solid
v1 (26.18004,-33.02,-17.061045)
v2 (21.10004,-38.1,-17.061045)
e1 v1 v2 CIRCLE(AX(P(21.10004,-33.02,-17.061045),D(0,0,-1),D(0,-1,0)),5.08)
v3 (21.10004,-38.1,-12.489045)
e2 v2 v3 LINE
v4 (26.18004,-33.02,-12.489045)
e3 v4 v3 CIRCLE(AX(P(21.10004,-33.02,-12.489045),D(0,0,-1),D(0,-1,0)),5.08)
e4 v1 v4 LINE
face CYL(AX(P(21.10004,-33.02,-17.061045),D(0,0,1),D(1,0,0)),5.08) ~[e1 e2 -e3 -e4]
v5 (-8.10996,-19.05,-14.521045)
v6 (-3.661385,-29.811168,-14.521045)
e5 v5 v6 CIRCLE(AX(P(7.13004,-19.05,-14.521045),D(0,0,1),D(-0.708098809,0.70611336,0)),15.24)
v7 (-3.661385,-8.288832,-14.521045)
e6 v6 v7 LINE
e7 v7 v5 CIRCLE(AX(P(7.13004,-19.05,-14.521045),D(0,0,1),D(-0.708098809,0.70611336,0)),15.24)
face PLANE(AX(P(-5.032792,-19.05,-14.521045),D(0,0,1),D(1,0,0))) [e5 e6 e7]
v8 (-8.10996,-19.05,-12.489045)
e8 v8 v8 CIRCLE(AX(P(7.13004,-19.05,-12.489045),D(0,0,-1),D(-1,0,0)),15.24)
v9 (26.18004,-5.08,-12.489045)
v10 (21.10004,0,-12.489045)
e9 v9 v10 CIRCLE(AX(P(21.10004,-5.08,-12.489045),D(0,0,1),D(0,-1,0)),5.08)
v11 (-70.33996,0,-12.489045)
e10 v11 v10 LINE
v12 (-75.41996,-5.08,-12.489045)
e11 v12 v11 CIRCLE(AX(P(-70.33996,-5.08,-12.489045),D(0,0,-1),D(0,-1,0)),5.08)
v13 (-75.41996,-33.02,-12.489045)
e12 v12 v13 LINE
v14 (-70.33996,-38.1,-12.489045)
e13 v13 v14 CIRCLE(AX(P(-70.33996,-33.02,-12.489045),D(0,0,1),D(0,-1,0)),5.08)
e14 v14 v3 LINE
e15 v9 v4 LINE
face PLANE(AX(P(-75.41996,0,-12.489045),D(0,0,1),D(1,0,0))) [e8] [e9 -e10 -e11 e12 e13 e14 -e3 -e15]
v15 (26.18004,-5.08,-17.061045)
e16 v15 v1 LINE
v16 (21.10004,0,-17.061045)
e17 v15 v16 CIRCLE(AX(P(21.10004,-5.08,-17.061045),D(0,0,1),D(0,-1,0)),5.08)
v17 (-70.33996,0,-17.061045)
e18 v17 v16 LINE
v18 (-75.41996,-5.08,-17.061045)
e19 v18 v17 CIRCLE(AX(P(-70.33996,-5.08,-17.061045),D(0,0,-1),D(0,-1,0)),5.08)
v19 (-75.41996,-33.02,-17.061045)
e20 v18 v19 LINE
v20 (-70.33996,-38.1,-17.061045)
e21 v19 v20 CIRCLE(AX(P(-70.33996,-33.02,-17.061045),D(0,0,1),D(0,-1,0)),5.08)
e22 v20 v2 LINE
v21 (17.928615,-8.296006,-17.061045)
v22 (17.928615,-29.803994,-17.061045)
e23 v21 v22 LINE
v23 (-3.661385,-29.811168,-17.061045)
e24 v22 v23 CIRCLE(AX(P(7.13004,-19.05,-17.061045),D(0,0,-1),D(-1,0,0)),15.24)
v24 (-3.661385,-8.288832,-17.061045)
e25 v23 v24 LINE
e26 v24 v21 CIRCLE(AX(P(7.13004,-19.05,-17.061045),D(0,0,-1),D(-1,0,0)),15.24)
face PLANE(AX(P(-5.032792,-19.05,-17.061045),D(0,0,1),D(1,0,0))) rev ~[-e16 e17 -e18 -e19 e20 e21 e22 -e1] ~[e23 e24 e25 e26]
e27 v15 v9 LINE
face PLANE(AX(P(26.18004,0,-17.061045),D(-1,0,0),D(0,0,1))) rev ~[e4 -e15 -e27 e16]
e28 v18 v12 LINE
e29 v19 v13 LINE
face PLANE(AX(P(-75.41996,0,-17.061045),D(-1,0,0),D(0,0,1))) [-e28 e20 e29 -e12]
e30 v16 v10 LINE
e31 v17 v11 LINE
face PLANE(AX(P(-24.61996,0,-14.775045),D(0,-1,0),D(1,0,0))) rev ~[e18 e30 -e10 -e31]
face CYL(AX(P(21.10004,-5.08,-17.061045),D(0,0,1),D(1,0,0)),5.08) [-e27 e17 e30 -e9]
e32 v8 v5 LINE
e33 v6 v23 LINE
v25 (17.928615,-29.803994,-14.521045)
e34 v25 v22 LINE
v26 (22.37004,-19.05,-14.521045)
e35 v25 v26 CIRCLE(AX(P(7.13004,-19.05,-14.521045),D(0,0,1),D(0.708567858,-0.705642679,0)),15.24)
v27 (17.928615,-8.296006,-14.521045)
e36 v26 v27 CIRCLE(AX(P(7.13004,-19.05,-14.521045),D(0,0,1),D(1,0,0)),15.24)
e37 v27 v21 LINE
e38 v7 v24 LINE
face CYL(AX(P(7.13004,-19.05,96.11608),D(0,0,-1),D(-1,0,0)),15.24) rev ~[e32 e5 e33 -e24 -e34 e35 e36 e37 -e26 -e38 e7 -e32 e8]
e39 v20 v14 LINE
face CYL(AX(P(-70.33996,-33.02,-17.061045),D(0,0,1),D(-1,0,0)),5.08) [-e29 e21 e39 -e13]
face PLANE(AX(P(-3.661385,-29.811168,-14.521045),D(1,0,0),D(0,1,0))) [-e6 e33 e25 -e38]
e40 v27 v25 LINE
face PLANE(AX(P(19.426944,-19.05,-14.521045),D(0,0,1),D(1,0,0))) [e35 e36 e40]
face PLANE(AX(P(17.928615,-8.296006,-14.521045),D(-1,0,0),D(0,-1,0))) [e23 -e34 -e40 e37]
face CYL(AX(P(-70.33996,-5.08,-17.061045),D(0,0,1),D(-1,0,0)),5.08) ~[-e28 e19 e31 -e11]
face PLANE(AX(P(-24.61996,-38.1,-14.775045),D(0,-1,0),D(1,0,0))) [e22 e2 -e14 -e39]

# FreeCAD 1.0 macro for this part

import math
import FreeCAD as App
import Part
import Sketcher
from FreeCAD import Vector
Q = App.Units.Quantity


def edges_at(feature, points):
    """Names of the edges that pass closest to the given points."""
    edges = feature.Shape.Edges
    near = lambda p: min(range(len(edges)), key=lambda i: edges[i].distToShape(Part.Vertex(*p))[0])
    return sorted({f"Edge{near(p) + 1}" for p in points})


def add_polygon(sketch, points):
    """Adds a closed chain of lines whose ends are joined by coincident constraints."""
    first, n = sketch.GeometryCount, len(points)
    for a, b in zip(points, points[1:] + points[:1]):
        sketch.addGeometry(Part.LineSegment(App.Vector(*a, 0), App.Vector(*b, 0)), False)
    for i in range(n):
        sketch.addConstraint(Sketcher.Constraint("Coincident", first + i, 2, first + (i + 1) % n, 1))

doc = App.newDocument("Part")
params = doc.addObject("Spreadsheet::Sheet", "Params")
for row, (alias, value) in enumerate([
    ("sketch1_width", "4 in"),
    ("sketch1_height", "0.18 in"),
    ("pad1_length", "1.5 in"),
    ("fillet_radius", "0.2 in"),
    ("sketch2_diameter", "1.2 in"),
    ("hole_diameter", "1.2 in"),
    ("sketch3_radius", "0.6 in"),
    ("pad2_length", "0.1 in"),
], start=1):
    params.set(f"A{row}", alias)
    params.set(f"B{row}", "=" + value)
    params.setAlias(f"B{row}", alias)

body = doc.addObject("PartDesign::Body", "Body")

sketch1 = doc.addObject("Sketcher::SketchObject", "Sketch")
body.addObject(sketch1)
sketch1.AttachmentSupport = (doc.XZ_Plane, [""])
sketch1.MapMode = "FlatFace"
add_polygon(sketch1, [(-75.4, -12.5), (-75.4, -17.1), (26.2, -17.1), (26.2, -12.5)])
sketch1.addConstraint([
    Sketcher.Constraint("Vertical", 0),
    Sketcher.Constraint("Horizontal", 1),
    Sketcher.Constraint("Vertical", 2),
    Sketcher.Constraint("Horizontal", 3),
    Sketcher.Constraint("DistanceX", 1, 1, 1, 2, Q("4 in")),
    Sketcher.Constraint("DistanceY", 0, 2, 0, 1, Q("0.18 in")),
    Sketcher.Constraint("DistanceX", 0, 2, -1, 1, Q("75.41996 mm")),
    Sketcher.Constraint("DistanceY", 0, 2, -1, 1, Q("17.061045 mm")),
])
sketch1.setExpression("Constraints[8]", "Params.sketch1_width")
sketch1.setExpression("Constraints[9]", "Params.sketch1_height")
pad1 = doc.addObject("PartDesign::Pad", "Pad")
body.addObject(pad1)
pad1.Profile = sketch1
pad1.setExpression("Length", "Params.pad1_length")
doc.recompute()

fillet = doc.addObject("PartDesign::Fillet", "Fillet")
body.addObject(fillet)
fillet.Base = (pad1, edges_at(pad1, [
    (26.18, -38.1, -14.775),
    (26.18, 0, -14.775),
    (-75.42, -38.1, -14.775),
    (-75.42, 0, -14.775),
]))
fillet.setExpression("Radius", "Params.fillet_radius")

sketch2 = doc.addObject("Sketcher::SketchObject", "Sketch001")
body.addObject(sketch2)
sketch2.AttachmentSupport = (doc.XY_Plane, [""])
sketch2.MapMode = "FlatFace"
sketch2.AttachmentOffset = App.Placement(Vector(0, 0, -12.489045), App.Rotation())
sketch2.addGeometry(Part.Circle(Vector(7, -19, 0), Vector(0, 0, 1), 15), False)
sketch2.addConstraint([
    Sketcher.Constraint("Diameter", 0, Q("1.2 in")),
    Sketcher.Constraint("DistanceY", 0, 3, -1, 1, Q("0.75 in")),
    Sketcher.Constraint("DistanceX", -1, 1, 0, 3, Q("7.13004 mm")),
])
sketch2.setExpression("Constraints[0]", "Params.sketch2_diameter")
doc.recompute()
hole = doc.addObject("PartDesign::Hole", "Hole")
body.addObject(hole)
hole.Profile = sketch2
hole.ThreadType = "None"
hole.setExpression("Diameter", "Params.hole_diameter")
hole.DepthType = "ThroughAll"

sketch3 = doc.addObject("Sketcher::SketchObject", "Sketch002")
body.addObject(sketch3)
sketch3.AttachmentSupport = (doc.XY_Plane, [""])
sketch3.MapMode = "FlatFace"
sketch3.AttachmentOffset = App.Placement(Vector(0, 0, -14.521045), App.Rotation())
sketch3.addGeometry([
    Part.ArcOfCircle(Part.Circle(Vector(7, -19, 0), Vector(0, 0, 1), 15), math.radians(0), math.radians(45)),
    Part.LineSegment(Vector(18, -8, 0), Vector(18, -30, 0)),
    Part.ArcOfCircle(Part.Circle(Vector(7, -19, 0), Vector(0, 0, 1), 15), math.radians(-45), math.radians(0)),
    Part.LineSegment(Vector(-4, -30, 0), Vector(-4, -8, 0)),
    Part.ArcOfCircle(Part.Circle(Vector(7, -19, 0), Vector(0, 0, 1), 15), math.radians(135), math.radians(225)),
], False)
sketch3.addConstraint([
    Sketcher.Constraint("Coincident", 0, 2, 1, 1),
    Sketcher.Constraint("Coincident", 1, 2, 2, 1),
    Sketcher.Constraint("Tangent", 2, 2, 0, 1),
    Sketcher.Constraint("Coincident", 3, 1, 4, 2),
    Sketcher.Constraint("Coincident", 4, 1, 3, 2),
    Sketcher.Constraint("Vertical", 1),
    Sketcher.Constraint("Vertical", 3),
    Sketcher.Constraint("Coincident", 4, 3, 0, 3),
    Sketcher.Constraint("Equal", 0, 2),
    Sketcher.Constraint("Equal", 2, 4),
    Sketcher.Constraint("Horizontal", 4, 3, 2, 2),
    Sketcher.Constraint("Radius", 0, Q("0.6 in")),
    Sketcher.Constraint("DistanceY", 0, 3, -1, 1, Q("0.75 in")),
    Sketcher.Constraint("DistanceX", 3, 1, 1, 2, Q("0.85 in")),
    Sketcher.Constraint("DistanceY", 1, 2, 1, 1, Q("21.507989 mm")),
    Sketcher.Constraint("DistanceX", -1, 1, 0, 3, Q("7.13004 mm")),
])
sketch3.setExpression("Constraints[11]", "Params.sketch3_radius")
pad2 = doc.addObject("PartDesign::Pad", "Pad001")
body.addObject(pad2)
pad2.Profile = sketch3
pad2.setExpression("Length", "Params.pad2_length")
pad2.Reversed = True

doc.recompute()
